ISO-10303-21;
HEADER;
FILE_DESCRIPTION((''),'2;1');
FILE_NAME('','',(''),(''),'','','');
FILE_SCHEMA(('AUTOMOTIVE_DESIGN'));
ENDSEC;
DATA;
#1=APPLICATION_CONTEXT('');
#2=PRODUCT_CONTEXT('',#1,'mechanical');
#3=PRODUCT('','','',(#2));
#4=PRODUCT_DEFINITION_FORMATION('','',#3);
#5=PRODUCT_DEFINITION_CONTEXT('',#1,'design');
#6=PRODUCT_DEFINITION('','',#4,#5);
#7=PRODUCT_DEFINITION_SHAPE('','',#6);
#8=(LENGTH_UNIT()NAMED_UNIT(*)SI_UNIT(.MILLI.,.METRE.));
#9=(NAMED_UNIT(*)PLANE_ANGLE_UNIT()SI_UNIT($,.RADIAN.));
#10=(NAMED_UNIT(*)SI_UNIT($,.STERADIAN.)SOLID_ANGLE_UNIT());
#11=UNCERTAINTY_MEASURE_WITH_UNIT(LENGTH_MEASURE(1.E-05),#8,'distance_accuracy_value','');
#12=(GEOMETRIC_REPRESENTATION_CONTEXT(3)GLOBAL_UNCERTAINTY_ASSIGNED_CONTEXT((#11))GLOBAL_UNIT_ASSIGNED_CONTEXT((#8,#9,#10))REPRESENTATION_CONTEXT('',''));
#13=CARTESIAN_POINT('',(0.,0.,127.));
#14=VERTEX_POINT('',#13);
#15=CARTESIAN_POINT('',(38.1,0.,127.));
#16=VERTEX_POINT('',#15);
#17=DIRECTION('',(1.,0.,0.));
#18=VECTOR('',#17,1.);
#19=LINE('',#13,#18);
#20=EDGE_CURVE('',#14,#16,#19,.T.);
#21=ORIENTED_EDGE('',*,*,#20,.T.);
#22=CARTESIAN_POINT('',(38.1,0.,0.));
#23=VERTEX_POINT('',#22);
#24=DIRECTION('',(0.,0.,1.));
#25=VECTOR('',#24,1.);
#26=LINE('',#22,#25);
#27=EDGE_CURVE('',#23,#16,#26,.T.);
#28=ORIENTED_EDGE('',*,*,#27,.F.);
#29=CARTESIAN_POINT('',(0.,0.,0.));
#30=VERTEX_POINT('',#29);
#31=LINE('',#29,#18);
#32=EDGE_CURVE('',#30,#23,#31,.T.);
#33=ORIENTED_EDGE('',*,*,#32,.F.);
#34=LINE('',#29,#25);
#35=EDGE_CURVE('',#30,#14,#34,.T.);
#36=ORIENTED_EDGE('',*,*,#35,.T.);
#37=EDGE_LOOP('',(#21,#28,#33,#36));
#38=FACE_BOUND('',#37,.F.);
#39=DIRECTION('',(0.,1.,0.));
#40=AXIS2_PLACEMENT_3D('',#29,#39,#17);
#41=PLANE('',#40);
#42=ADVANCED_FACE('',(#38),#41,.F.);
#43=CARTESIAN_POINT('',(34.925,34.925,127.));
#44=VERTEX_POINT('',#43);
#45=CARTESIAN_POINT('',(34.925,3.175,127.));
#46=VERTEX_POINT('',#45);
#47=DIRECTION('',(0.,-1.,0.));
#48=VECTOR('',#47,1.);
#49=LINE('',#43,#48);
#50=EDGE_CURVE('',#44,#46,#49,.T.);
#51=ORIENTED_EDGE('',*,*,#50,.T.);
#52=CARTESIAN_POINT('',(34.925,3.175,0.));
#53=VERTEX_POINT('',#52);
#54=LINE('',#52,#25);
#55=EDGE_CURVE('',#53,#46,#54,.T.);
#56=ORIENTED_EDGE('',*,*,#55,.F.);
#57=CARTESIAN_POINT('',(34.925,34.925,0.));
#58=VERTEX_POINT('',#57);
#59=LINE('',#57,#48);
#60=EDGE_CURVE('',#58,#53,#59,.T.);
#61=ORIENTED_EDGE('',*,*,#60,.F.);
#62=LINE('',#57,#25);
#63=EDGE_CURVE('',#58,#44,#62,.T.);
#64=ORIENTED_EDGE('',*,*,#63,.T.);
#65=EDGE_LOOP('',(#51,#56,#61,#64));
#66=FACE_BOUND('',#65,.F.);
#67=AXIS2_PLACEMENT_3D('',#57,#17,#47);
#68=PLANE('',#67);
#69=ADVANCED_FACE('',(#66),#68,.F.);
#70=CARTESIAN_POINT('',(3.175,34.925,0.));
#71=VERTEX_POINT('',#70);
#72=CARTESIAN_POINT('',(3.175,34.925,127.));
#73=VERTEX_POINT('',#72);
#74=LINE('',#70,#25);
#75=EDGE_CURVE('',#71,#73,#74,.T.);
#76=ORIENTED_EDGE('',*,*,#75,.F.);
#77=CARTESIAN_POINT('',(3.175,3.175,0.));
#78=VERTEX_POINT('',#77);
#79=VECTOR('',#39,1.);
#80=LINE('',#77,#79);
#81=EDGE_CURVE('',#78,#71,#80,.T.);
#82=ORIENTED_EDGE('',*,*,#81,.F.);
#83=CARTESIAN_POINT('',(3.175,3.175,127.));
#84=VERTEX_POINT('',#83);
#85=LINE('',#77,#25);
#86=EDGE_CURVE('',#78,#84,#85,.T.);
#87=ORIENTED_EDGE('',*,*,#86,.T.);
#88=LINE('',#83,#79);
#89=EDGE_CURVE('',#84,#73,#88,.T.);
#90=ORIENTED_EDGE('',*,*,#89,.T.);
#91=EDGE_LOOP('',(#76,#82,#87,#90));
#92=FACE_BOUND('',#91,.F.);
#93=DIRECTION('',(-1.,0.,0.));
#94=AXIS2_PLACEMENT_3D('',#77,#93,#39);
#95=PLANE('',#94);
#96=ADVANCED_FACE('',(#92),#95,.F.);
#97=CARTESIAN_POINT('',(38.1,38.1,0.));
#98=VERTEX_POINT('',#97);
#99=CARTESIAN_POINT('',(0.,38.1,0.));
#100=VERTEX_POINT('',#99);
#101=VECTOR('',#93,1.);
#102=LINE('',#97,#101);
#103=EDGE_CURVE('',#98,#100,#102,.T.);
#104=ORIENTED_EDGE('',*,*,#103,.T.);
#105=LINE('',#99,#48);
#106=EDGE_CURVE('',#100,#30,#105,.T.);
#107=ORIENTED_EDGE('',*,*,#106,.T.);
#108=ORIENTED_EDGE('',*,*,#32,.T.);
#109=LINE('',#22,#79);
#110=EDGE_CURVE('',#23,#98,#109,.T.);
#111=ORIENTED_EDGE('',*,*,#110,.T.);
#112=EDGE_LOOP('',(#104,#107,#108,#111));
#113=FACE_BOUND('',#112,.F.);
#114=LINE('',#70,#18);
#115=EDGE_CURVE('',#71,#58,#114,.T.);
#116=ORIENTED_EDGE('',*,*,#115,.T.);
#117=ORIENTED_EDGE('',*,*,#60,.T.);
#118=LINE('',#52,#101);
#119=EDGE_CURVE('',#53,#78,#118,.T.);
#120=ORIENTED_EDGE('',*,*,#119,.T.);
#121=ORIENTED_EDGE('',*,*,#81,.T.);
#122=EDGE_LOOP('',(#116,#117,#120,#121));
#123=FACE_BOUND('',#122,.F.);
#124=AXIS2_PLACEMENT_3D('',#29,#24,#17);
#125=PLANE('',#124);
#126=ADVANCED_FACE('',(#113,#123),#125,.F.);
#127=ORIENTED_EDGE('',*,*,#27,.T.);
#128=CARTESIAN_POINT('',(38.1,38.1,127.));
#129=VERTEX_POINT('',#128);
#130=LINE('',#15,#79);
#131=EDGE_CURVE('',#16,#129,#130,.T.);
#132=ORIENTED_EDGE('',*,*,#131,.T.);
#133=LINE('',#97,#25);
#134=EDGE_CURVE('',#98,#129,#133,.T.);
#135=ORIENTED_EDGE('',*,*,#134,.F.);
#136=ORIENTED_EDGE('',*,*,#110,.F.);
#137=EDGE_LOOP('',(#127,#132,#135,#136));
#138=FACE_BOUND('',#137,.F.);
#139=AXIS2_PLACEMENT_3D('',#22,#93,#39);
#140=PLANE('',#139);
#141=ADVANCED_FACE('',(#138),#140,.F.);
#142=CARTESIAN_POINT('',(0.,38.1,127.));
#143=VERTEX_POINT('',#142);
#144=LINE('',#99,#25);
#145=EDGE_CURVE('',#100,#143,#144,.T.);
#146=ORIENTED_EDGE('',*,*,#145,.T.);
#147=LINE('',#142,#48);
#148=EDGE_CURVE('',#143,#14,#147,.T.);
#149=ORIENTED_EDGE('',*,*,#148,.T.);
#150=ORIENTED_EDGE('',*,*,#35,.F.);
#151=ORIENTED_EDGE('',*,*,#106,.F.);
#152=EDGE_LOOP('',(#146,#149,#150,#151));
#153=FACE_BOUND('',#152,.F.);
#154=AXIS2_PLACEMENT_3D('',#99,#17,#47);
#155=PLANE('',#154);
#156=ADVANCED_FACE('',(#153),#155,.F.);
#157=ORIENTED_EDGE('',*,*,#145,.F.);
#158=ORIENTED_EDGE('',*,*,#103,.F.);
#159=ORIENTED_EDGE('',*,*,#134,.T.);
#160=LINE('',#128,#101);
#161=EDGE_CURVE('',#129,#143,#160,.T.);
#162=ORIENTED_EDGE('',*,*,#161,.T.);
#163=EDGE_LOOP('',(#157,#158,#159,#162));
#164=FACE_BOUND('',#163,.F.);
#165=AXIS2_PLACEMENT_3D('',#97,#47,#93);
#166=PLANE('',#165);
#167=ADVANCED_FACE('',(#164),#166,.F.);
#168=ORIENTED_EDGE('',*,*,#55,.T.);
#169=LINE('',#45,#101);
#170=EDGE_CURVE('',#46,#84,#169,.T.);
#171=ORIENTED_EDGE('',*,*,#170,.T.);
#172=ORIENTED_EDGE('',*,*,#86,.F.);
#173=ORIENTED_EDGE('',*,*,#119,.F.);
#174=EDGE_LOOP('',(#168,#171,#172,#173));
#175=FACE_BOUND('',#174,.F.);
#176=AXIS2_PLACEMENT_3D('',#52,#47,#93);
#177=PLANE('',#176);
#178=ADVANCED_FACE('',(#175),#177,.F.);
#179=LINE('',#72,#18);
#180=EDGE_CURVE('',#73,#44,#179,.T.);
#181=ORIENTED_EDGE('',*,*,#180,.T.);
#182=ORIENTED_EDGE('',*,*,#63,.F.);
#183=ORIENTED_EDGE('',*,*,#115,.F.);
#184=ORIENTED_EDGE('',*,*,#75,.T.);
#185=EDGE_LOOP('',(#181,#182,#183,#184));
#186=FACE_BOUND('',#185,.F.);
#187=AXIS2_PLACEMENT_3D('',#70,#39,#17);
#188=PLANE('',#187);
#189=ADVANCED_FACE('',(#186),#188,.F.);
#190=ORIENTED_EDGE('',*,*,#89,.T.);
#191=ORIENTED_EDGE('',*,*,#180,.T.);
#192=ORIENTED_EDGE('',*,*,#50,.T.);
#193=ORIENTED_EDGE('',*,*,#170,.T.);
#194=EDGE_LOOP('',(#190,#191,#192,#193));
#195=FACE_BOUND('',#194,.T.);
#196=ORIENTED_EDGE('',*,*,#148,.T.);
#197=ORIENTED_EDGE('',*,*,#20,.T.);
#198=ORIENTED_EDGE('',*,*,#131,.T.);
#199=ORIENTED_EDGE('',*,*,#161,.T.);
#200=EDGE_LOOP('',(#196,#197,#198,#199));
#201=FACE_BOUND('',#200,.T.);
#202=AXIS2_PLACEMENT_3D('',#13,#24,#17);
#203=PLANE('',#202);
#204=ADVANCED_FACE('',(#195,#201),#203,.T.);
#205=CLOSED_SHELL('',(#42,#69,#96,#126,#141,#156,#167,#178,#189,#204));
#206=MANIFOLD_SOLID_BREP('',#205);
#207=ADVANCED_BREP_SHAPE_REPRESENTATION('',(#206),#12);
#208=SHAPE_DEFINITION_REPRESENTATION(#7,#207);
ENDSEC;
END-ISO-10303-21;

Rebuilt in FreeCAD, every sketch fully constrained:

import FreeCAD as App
import Part
import Sketcher

V = App.Vector
Q = App.Units.Quantity

doc = App.newDocument("Part")
body = doc.addObject("PartDesign::Body", "Body")

sketch1 = body.newObject("Sketcher::SketchObject", "Sketch")
sketch1.AttachmentSupport = (doc.getObject("XY_Plane"), [""])
sketch1.MapMode = "FlatFace"
sketch1.addGeometry([
    Part.LineSegment(V(0, 38.1, 0), V(0, 0, 0)),
    Part.LineSegment(V(0, 0, 0), V(38.1, 0, 0)),
    Part.LineSegment(V(38.1, 0, 0), V(38.1, 38.1, 0)),
    Part.LineSegment(V(38.1, 38.1, 0), V(0, 38.1, 0)),
    Part.LineSegment(V(3.175, 34.925, 0), V(34.925, 34.925, 0)),
    Part.LineSegment(V(34.925, 34.925, 0), V(34.925, 3.175, 0)),
    Part.LineSegment(V(34.925, 3.175, 0), V(3.175, 3.175, 0)),
    Part.LineSegment(V(3.175, 3.175, 0), V(3.175, 34.925, 0)),
], False)
sketch1.addConstraint([
    Sketcher.Constraint("Coincident", 0, 2, 1, 1),
    Sketcher.Constraint("Coincident", 1, 2, 2, 1),
    Sketcher.Constraint("Coincident", 2, 2, 3, 1),
    Sketcher.Constraint("Coincident", 3, 2, 0, 1),
    Sketcher.Constraint("Coincident", 4, 2, 5, 1),
    Sketcher.Constraint("Coincident", 5, 2, 6, 1),
    Sketcher.Constraint("Coincident", 6, 2, 7, 1),
    Sketcher.Constraint("Coincident", 7, 2, 4, 1),
    Sketcher.Constraint("Vertical", 0),
    Sketcher.Constraint("Horizontal", 1),
    Sketcher.Constraint("Vertical", 2),
    Sketcher.Constraint("Horizontal", 3),
    Sketcher.Constraint("Horizontal", 4),
    Sketcher.Constraint("Vertical", 5),
    Sketcher.Constraint("Horizontal", 6),
    Sketcher.Constraint("Vertical", 7),
    Sketcher.Constraint("Coincident", 0, 2, -1, 1),
    Sketcher.Constraint("Equal", 3, 0),
    Sketcher.Constraint("Equal", 6, 5),
    Sketcher.Constraint("DistanceX", 1, 1, 1, 2, Q("1.5 in")),
    Sketcher.Constraint("DistanceY", -1, 1, 5, 2, Q("0.125 in")),
    Sketcher.Constraint("DistanceX", -1, 1, 6, 2, Q("0.125 in")),
    Sketcher.Constraint("DistanceX", 4, 2, 2, 2, Q("0.125 in")),
])
pad1 = body.newObject("PartDesign::Pad", "Pad")
pad1.Profile = sketch1
pad1.Length = Q("5 in")

doc.recompute()
